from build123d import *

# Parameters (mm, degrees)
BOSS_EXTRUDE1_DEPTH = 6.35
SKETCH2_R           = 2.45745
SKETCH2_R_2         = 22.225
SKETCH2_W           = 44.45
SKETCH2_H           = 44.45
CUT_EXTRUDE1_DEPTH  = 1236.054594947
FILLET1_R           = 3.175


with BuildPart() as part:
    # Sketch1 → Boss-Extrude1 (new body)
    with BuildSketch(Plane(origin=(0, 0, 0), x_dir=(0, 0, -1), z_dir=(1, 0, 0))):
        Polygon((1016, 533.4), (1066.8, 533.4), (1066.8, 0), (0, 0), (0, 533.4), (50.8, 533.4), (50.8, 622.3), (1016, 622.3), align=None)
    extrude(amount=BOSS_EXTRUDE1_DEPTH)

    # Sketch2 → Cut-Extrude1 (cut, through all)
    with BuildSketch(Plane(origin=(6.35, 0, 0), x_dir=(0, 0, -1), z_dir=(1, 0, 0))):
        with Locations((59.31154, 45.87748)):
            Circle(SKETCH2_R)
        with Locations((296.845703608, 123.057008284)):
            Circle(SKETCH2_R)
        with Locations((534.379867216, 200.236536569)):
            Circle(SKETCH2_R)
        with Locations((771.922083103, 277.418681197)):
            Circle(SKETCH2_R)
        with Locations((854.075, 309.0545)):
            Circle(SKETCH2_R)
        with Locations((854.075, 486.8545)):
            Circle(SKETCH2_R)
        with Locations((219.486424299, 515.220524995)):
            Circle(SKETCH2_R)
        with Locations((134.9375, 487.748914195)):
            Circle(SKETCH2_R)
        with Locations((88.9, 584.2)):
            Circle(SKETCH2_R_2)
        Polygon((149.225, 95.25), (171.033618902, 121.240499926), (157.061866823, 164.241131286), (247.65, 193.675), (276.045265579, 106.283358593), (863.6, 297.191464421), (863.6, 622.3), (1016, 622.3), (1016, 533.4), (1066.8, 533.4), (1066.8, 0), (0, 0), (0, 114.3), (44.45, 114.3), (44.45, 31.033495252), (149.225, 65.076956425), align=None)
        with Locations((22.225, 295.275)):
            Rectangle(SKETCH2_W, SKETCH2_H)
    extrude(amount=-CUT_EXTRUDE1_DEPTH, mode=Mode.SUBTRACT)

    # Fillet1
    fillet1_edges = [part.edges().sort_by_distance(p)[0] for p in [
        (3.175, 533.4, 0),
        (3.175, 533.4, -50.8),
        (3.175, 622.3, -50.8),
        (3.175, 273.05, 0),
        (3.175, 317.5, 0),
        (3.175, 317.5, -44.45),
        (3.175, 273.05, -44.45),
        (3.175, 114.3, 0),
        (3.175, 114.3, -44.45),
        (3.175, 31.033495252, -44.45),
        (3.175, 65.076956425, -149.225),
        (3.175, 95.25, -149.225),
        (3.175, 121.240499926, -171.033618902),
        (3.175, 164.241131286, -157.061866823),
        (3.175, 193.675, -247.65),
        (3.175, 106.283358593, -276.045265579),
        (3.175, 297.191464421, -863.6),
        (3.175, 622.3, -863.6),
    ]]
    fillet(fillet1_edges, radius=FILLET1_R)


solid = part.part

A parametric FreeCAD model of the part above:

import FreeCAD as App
import Part
import Sketcher
Q = App.Units.Quantity


def edges_at(feature, points):
    """Names of the edges that pass closest to the given points."""
    edges = feature.Shape.Edges
    near = lambda p: min(range(len(edges)), key=lambda i: edges[i].distToShape(Part.Vertex(*p))[0])
    return sorted({f"Edge{near(p) + 1}" for p in points})

doc = App.newDocument("Part")
params = doc.addObject("Spreadsheet::Sheet", "Params")
for row, (alias, value) in enumerate([
    ("sketch1_width", "21 in"),
    ("sketch1_height", "2 in"),
    ("sketch1_height2", "38 in"),
    ("sketch1_width2", "3.5 in"),
    ("pad1_length", "0.25 in"),
    ("sketch2_diameter", "1.75 in"),
    ("sketch2_width", "21 in"),
    ("sketch2_height", "42 in"),
    ("sketch2_height2", "2 in"),
    ("sketch2_height3", "6 in"),
    ("fillet_radius", "0.125 in"),
], start=1):
    params.set(f"A{row}", alias)
    params.set(f"B{row}", "=" + value)
    params.setAlias(f"B{row}", alias)

body = doc.addObject("PartDesign::Body", "Body")

sketch1 = body.newObject("Sketcher::SketchObject", "Sketch")
sketch1.AttachmentSupport = (doc.getObject("YZ_Plane"), [""])
sketch1.MapMode = "FlatFace"
sketch1.addGeometry([
    Part.LineSegment(App.Vector(533, -1067, 0), App.Vector(533, -1016, 0)),
    Part.LineSegment(App.Vector(533, -1016, 0), App.Vector(622, -1016, 0)),
    Part.LineSegment(App.Vector(622, -1016, 0), App.Vector(622, -51, 0)),
    Part.LineSegment(App.Vector(622, -51, 0), App.Vector(533, -51, 0)),
    Part.LineSegment(App.Vector(533, -51, 0), App.Vector(533, 0, 0)),
    Part.LineSegment(App.Vector(533, 0, 0), App.Vector(0, 0, 0)),
    Part.LineSegment(App.Vector(0, 0, 0), App.Vector(0, -1067, 0)),
    Part.LineSegment(App.Vector(0, -1067, 0), App.Vector(533, -1067, 0)),
], False)
sketch1.addConstraint([
    Sketcher.Constraint("Coincident", 0, 2, 1, 1),
    Sketcher.Constraint("Coincident", 1, 2, 2, 1),
    Sketcher.Constraint("Coincident", 2, 2, 3, 1),
    Sketcher.Constraint("Coincident", 3, 2, 4, 1),
    Sketcher.Constraint("Coincident", 4, 2, 5, 1),
    Sketcher.Constraint("Coincident", 5, 2, 6, 1),
    Sketcher.Constraint("Coincident", 6, 2, 7, 1),
    Sketcher.Constraint("Coincident", 7, 2, 0, 1),
    Sketcher.Constraint("Vertical", 0),
    Sketcher.Constraint("Horizontal", 1),
    Sketcher.Constraint("Vertical", 2),
    Sketcher.Constraint("Horizontal", 3),
    Sketcher.Constraint("Vertical", 4),
    Sketcher.Constraint("Horizontal", 5),
    Sketcher.Constraint("Vertical", 6),
    Sketcher.Constraint("Horizontal", 7),
    Sketcher.Constraint("Coincident", 5, 2, -1, 1),
    Sketcher.Constraint("Vertical", 0, 2, 3, 2),
    Sketcher.Constraint("Equal", 0, 4),
    Sketcher.Constraint("DistanceX", 5, 2, 5, 1, Q("21 in")),
    Sketcher.Constraint("DistanceY", 0, 1, 0, 2, Q("2 in")),
    Sketcher.Constraint("DistanceY", 2, 1, 2, 2, Q("38 in")),
    Sketcher.Constraint("DistanceX", 1, 1, 1, 2, Q("3.5 in")),
])
sketch1.setExpression("Constraints[19]", "Params.sketch1_width")
sketch1.setExpression("Constraints[20]", "Params.sketch1_height")
sketch1.setExpression("Constraints[21]", "Params.sketch1_height2")
sketch1.setExpression("Constraints[22]", "Params.sketch1_width2")
pad1 = body.newObject("PartDesign::Pad", "Pad")
pad1.Profile = sketch1
pad1.setExpression("Length", "Params.pad1_length")

sketch2 = body.newObject("Sketcher::SketchObject", "Sketch001")
sketch2.AttachmentSupport = (doc.getObject("YZ_Plane"), [""])
sketch2.MapMode = "FlatFace"
sketch2.AttachmentOffset = App.Placement(App.Vector(0, 0, 0.25 * 25.4), App.Rotation())
sketch2.addGeometry([
    Part.Circle(App.Vector(45.9, -59.3, 0), App.Vector(0, 0, 1), 2.5),
    Part.Circle(App.Vector(123.1, -296.8, 0), App.Vector(0, 0, 1), 2.5),
    Part.Circle(App.Vector(200.2, -534.4, 0), App.Vector(0, 0, 1), 2.5),
    Part.Circle(App.Vector(277.4, -771.9, 0), App.Vector(0, 0, 1), 2.5),
    Part.Circle(App.Vector(309.1, -854.1, 0), App.Vector(0, 0, 1), 2.5),
    Part.Circle(App.Vector(486.9, -854.1, 0), App.Vector(0, 0, 1), 2.5),
    Part.Circle(App.Vector(515.2, -219.5, 0), App.Vector(0, 0, 1), 2.5),
    Part.Circle(App.Vector(487.7, -134.9, 0), App.Vector(0, 0, 1), 2.5),
    Part.Circle(App.Vector(584.2, -88.9, 0), App.Vector(0, 0, 1), 22.2),
    Part.LineSegment(App.Vector(121.2, -171, 0), App.Vector(95.2, -149.2, 0)),
    Part.LineSegment(App.Vector(95.2, -149.2, 0), App.Vector(65.1, -149.2, 0)),
    Part.LineSegment(App.Vector(65.1, -149.2, 0), App.Vector(31, -44.5, 0)),
    Part.LineSegment(App.Vector(31, -44.5, 0), App.Vector(114.3, -44.5, 0)),
    Part.LineSegment(App.Vector(114.3, -44.5, 0), App.Vector(114.3, 0, 0)),
    Part.LineSegment(App.Vector(114.3, 0, 0), App.Vector(0, 0, 0)),
    Part.LineSegment(App.Vector(0, 0, 0), App.Vector(0, -1066.8, 0)),
    Part.LineSegment(App.Vector(0, -1066.8, 0), App.Vector(533.4, -1066.8, 0)),
    Part.LineSegment(App.Vector(533.4, -1066.8, 0), App.Vector(533.4, -1016, 0)),
    Part.LineSegment(App.Vector(533.4, -1016, 0), App.Vector(622.3, -1016, 0)),
    Part.LineSegment(App.Vector(622.3, -1016, 0), App.Vector(622.3, -863.6, 0)),
    Part.LineSegment(App.Vector(622.3, -863.6, 0), App.Vector(297.2, -863.6, 0)),
    Part.LineSegment(App.Vector(297.2, -863.6, 0), App.Vector(106.3, -276, 0)),
    Part.LineSegment(App.Vector(106.3, -276, 0), App.Vector(193.7, -247.7, 0)),
    Part.LineSegment(App.Vector(193.7, -247.7, 0), App.Vector(164.2, -157.1, 0)),
    Part.LineSegment(App.Vector(164.2, -157.1, 0), App.Vector(121.2, -171, 0)),
    Part.LineSegment(App.Vector(317.5, 0, 0), App.Vector(273.1, 0, 0)),
    Part.LineSegment(App.Vector(273.1, 0, 0), App.Vector(273.1, -44.5, 0)),
    Part.LineSegment(App.Vector(273.1, -44.5, 0), App.Vector(317.5, -44.5, 0)),
    Part.LineSegment(App.Vector(317.5, -44.5, 0), App.Vector(317.5, 0, 0)),
], False)
sketch2.addConstraint([
    Sketcher.Constraint("Coincident", 9, 2, 10, 1),
    Sketcher.Constraint("Coincident", 10, 2, 11, 1),
    Sketcher.Constraint("Coincident", 11, 2, 12, 1),
    Sketcher.Constraint("Coincident", 12, 2, 13, 1),
    Sketcher.Constraint("Coincident", 13, 2, 14, 1),
    Sketcher.Constraint("Coincident", 14, 2, 15, 1),
    Sketcher.Constraint("Coincident", 15, 2, 16, 1),
    Sketcher.Constraint("Coincident", 16, 2, 17, 1),
    Sketcher.Constraint("Coincident", 17, 2, 18, 1),
    Sketcher.Constraint("Coincident", 18, 2, 19, 1),
    Sketcher.Constraint("Coincident", 19, 2, 20, 1),
    Sketcher.Constraint("Coincident", 20, 2, 21, 1),
    Sketcher.Constraint("Coincident", 21, 2, 22, 1),
    Sketcher.Constraint("Coincident", 22, 2, 23, 1),
    Sketcher.Constraint("Coincident", 23, 2, 24, 1),
    Sketcher.Constraint("Coincident", 24, 2, 9, 1),
    Sketcher.Constraint("Coincident", 25, 2, 26, 1),
    Sketcher.Constraint("Coincident", 26, 2, 27, 1),
    Sketcher.Constraint("Coincident", 27, 2, 28, 1),
    Sketcher.Constraint("Coincident", 28, 2, 25, 1),
    Sketcher.Constraint("Horizontal", 10),
    Sketcher.Constraint("Horizontal", 12),
    Sketcher.Constraint("Vertical", 13),
    Sketcher.Constraint("Horizontal", 14),
    Sketcher.Constraint("Vertical", 15),
    Sketcher.Constraint("Horizontal", 16),
    Sketcher.Constraint("Vertical", 17),
    Sketcher.Constraint("Horizontal", 18),
    Sketcher.Constraint("Vertical", 19),
    Sketcher.Constraint("Horizontal", 20),
    Sketcher.Constraint("Horizontal", 25),
    Sketcher.Constraint("Vertical", 26),
    Sketcher.Constraint("Horizontal", 27),
    Sketcher.Constraint("Vertical", 28),
    Sketcher.Constraint("Coincident", 14, 2, -1, 1),
    Sketcher.Constraint("Equal", 0, 1),
    Sketcher.Constraint("Equal", 1, 2),
    Sketcher.Constraint("Equal", 2, 3),
    Sketcher.Constraint("Equal", 3, 4),
    Sketcher.Constraint("Equal", 4, 5),
    Sketcher.Constraint("Equal", 5, 6),
    Sketcher.Constraint("Equal", 6, 7),
    Sketcher.Constraint("PointOnObject", 25, 2, -1),
    Sketcher.Constraint("Parallel", 11, 21),
    Sketcher.Constraint("Perpendicular", 21, 22),
    Sketcher.Constraint("Perpendicular", 22, 23),
    Sketcher.Constraint("Perpendicular", 23, 24),
    Sketcher.Constraint("Horizontal", 4, 3, 5, 3),
    Sketcher.Constraint("Horizontal", 12, 2, 26, 2),
    Sketcher.Constraint("Equal", 27, 13),
    Sketcher.Constraint("Diameter", 8, Q("1.75 in")),
    Sketcher.Constraint("DistanceX", 16, 1, 16, 2, Q("21 in")),
    Sketcher.Constraint("DistanceY", 15, 2, 15, 1, Q("42 in")),
    Sketcher.Constraint("DistanceY", 17, 1, 17, 2, Q("2 in")),
    Sketcher.Constraint("DistanceY", 19, 1, 19, 2, Q("6 in")),
    Sketcher.Constraint("DistanceX", 14, 2, 14, 1, Q("4.5 in")),
    Sketcher.Constraint("DistanceX", 18, 1, 18, 2, Q("3.5 in")),
    Sketcher.Constraint("DistanceX", -1, 1, 8, 3, Q("23 in")),
    Sketcher.Constraint("Angle", 9, Q("140 deg")),
    Sketcher.Constraint("Angle", 11, Q("108 deg")),
    Sketcher.Constraint("DistanceX", 4, 3, 5, 3, Q("7 in")),
    Sketcher.Constraint("DistanceY", 22, 2, 12, 2, Q("8 in")),
    Sketcher.Constraint("DistanceX", 9, 2, 25, 2, Q("7 in")),
    Sketcher.Constraint("DistanceX", 12, 2, 27, 2, Q("8 in")),
    Sketcher.Constraint("Diameter", 0, Q("0.1935 in")),
    Sketcher.Constraint("DistanceX", 25, 2, 25, 1, Q("1.75 in")),
    Sketcher.Constraint("DistanceY", 8, 3, -1, 1, Q("3.5 in")),
    Sketcher.Constraint("Distance", 23, Q("3.75 in")),
    Sketcher.Constraint("DistanceY", 4, 3, -1, 1, Q("33.625 in")),
    Sketcher.Constraint("DistanceY", 7, 3, -1, 1, Q("5.3125 in")),
    Sketcher.Constraint("DistanceY", 9, 2, -1, 1, Q("5.875 in")),
    Sketcher.Constraint("DistanceX", -1, 1, 22, 2, Q("7.625 in")),
    Sketcher.Constraint("DistanceX", -1, 1, 0, 3, Q("1.8062 in")),
    Sketcher.Constraint("DistanceY", 0, 3, -1, 1, Q("2.3351 in")),
    Sketcher.Constraint("DistanceX", -1, 1, 4, 3, Q("12.1675 in")),
    Sketcher.Constraint("DistanceX", 0, 3, 3, 3, 231.541201),
    Sketcher.Constraint("DistanceY", 21, 2, 23, 2, 118.983399),
    Sketcher.Constraint("DistanceX", 10, 2, 10, 1, 30.173044),
    Sketcher.Constraint("DistanceX", -1, 1, 1, 3, 123.057008),
    Sketcher.Constraint("DistanceX", 1, 3, 2, 3, 77.179528),
    Sketcher.Constraint("DistanceY", 3, 3, 1, 3, 475.076379),
    Sketcher.Constraint("DistanceY", 1, 3, 6, 3, 77.359279),
    Sketcher.Constraint("DistanceX", 2, 3, 6, 3, 314.983988),
    Sketcher.Constraint("DistanceX", 7, 3, 6, 3, 27.471611),
    Sketcher.Constraint("DistanceY", 1, 3, 21, 2, 20.800438),
    Sketcher.Constraint("DistanceY", 2, 3, -1, 1, 534.379867),
])
sketch2.setExpression("Constraints[50]", "Params.sketch2_diameter")
sketch2.setExpression("Constraints[51]", "Params.sketch2_width")
sketch2.setExpression("Constraints[52]", "Params.sketch2_height")
sketch2.setExpression("Constraints[53]", "Params.sketch2_height2")
sketch2.setExpression("Constraints[54]", "Params.sketch2_height3")
pocket1 = body.newObject("PartDesign::Pocket", "Pocket")
pocket1.Profile = sketch2
pocket1.Type = "ThroughAll"
doc.recompute()

fillet = body.newObject("PartDesign::Fillet", "Fillet")
fillet.Base = (pocket1, edges_at(pocket1, [
    (3.175, 533.4, 0),
    (3.175, 533.4, -50.8),
    (3.175, 622.3, -50.8),
    (3.175, 273.05, 0),
    (3.175, 317.5, 0),
    (3.175, 317.5, -44.45),
    (3.175, 273.05, -44.45),
    (3.175, 114.3, 0),
    (3.175, 114.3, -44.45),
    (3.175, 31.033, -44.45),
    (3.175, 65.077, -149.225),
    (3.175, 95.25, -149.225),
    (3.175, 121.24, -171.034),
    (3.175, 164.241, -157.062),
    (3.175, 193.675, -247.65),
    (3.175, 106.283, -276.045),
    (3.175, 297.191, -863.6),
    (3.175, 622.3, -863.6),
]))
fillet.setExpression("Radius", "Params.fillet_radius")

doc.recompute()
